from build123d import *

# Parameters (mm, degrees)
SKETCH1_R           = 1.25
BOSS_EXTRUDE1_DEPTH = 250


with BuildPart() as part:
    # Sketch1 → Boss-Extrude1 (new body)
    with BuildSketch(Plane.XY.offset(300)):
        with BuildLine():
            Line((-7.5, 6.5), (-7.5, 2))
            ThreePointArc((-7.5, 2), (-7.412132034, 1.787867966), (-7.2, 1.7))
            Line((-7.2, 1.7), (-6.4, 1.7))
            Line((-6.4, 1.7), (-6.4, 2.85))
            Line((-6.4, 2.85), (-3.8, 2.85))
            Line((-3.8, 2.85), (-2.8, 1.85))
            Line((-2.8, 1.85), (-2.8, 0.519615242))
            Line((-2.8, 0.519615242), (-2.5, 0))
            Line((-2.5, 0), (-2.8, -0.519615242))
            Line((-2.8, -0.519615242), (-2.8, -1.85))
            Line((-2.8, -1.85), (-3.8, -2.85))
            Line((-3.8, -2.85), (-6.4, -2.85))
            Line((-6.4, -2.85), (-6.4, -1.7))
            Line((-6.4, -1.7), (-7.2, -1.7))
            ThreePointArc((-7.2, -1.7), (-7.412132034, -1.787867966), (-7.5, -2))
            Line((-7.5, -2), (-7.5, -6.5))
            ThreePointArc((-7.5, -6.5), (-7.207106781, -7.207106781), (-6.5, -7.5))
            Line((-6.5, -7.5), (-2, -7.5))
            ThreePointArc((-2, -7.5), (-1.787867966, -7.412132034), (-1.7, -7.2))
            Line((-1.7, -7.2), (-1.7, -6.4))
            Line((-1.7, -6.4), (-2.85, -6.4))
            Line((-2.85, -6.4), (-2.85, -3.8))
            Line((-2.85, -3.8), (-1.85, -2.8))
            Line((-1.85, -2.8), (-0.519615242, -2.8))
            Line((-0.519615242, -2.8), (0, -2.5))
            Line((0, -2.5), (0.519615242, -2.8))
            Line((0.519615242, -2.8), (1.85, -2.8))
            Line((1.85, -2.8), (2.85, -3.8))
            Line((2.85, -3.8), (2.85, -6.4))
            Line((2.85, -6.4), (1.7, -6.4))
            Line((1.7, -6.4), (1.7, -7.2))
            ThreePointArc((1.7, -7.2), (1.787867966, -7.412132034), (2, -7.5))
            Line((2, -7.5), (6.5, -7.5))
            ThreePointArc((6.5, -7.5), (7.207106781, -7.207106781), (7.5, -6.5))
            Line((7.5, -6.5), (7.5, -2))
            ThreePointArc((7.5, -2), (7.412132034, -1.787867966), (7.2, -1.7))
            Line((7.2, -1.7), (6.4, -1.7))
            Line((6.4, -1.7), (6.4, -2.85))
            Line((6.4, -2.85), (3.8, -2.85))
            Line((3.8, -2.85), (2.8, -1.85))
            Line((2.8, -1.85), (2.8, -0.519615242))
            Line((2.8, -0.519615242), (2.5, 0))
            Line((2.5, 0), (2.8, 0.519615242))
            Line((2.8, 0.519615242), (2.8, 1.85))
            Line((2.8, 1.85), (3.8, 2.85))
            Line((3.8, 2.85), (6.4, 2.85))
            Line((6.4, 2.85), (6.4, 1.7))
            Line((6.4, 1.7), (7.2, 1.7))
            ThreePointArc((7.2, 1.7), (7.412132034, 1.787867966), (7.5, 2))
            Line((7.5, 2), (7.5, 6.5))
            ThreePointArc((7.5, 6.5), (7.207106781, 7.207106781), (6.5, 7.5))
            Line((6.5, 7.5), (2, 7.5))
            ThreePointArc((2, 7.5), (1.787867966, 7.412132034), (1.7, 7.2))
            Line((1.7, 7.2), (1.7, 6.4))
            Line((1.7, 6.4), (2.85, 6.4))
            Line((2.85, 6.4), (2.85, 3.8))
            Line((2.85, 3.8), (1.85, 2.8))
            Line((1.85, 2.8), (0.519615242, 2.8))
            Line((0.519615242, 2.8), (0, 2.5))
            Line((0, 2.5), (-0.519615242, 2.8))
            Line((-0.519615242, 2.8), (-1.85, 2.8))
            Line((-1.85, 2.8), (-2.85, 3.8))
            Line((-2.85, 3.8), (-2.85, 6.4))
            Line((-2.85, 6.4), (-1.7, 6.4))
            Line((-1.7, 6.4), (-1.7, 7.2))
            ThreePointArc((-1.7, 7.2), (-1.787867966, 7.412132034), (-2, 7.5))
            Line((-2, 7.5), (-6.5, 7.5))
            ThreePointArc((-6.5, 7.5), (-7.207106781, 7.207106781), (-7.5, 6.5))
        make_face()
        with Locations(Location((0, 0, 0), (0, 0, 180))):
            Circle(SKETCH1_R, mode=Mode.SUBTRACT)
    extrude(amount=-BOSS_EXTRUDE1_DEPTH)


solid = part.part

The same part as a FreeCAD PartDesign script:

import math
import FreeCAD as App
import Part
import Sketcher
from FreeCAD import Vector
Q = App.Units.Quantity

doc = App.newDocument("Part")
body = doc.addObject("PartDesign::Body", "Body")

# Sketch on XY plane
sketch1 = doc.addObject("Sketcher::SketchObject", "Sketch")
body.addObject(sketch1)
sketch1.AttachmentSupport = (doc.XY_Plane, [""])
sketch1.MapMode = "FlatFace"
sketch1.AttachmentOffset = App.Placement(Vector(0, 0, 300), App.Rotation())
sketch1.addGeometry(Part.LineSegment(Vector(-7.5, 6.5, 0), Vector(-7.5, 2, 0)), False)
sketch1.addGeometry(Part.ArcOfCircle(Part.Circle(Vector(-7.2, 2, 0), Vector(0, 0, 1), 0.3), math.radians(-180), math.radians(-90)), False)
sketch1.addGeometry(Part.LineSegment(Vector(-7.2, 1.7, 0), Vector(-6.4, 1.7, 0)), False)
sketch1.addGeometry(Part.LineSegment(Vector(-6.4, 1.7, 0), Vector(-6.4, 2.85, 0)), False)
sketch1.addGeometry(Part.LineSegment(Vector(-6.4, 2.85, 0), Vector(-3.8, 2.85, 0)), False)
sketch1.addGeometry(Part.LineSegment(Vector(-3.8, 2.85, 0), Vector(-2.8, 1.85, 0)), False)
sketch1.addGeometry(Part.LineSegment(Vector(-2.8, 1.85, 0), Vector(-2.8, 0.52, 0)), False)
sketch1.addGeometry(Part.LineSegment(Vector(-2.8, 0.52, 0), Vector(-2.5, 0, 0)), False)
sketch1.addGeometry(Part.LineSegment(Vector(-2.5, 0, 0), Vector(-2.8, -0.52, 0)), False)
sketch1.addGeometry(Part.LineSegment(Vector(-2.8, -0.52, 0), Vector(-2.8, -1.85, 0)), False)
sketch1.addGeometry(Part.LineSegment(Vector(-2.8, -1.85, 0), Vector(-3.8, -2.85, 0)), False)
sketch1.addGeometry(Part.LineSegment(Vector(-3.8, -2.85, 0), Vector(-6.4, -2.85, 0)), False)
sketch1.addGeometry(Part.LineSegment(Vector(-6.4, -2.85, 0), Vector(-6.4, -1.7, 0)), False)
sketch1.addGeometry(Part.LineSegment(Vector(-6.4, -1.7, 0), Vector(-7.2, -1.7, 0)), False)
sketch1.addGeometry(Part.ArcOfCircle(Part.Circle(Vector(-7.2, -2, 0), Vector(0, 0, 1), 0.3), math.radians(90), math.radians(180)), False)
sketch1.addGeometry(Part.LineSegment(Vector(-7.5, -2, 0), Vector(-7.5, -6.5, 0)), False)
sketch1.addGeometry(Part.ArcOfCircle(Part.Circle(Vector(-6.5, -6.5, 0), Vector(0, 0, 1), 1), math.radians(-180), math.radians(-90)), False)
sketch1.addGeometry(Part.LineSegment(Vector(-6.5, -7.5, 0), Vector(-2, -7.5, 0)), False)
sketch1.addGeometry(Part.ArcOfCircle(Part.Circle(Vector(-2, -7.2, 0), Vector(0, 0, 1), 0.3), math.radians(-90), math.radians(0)), False)
sketch1.addGeometry(Part.LineSegment(Vector(-1.7, -7.2, 0), Vector(-1.7, -6.4, 0)), False)
sketch1.addGeometry(Part.LineSegment(Vector(-1.7, -6.4, 0), Vector(-2.85, -6.4, 0)), False)
sketch1.addGeometry(Part.LineSegment(Vector(-2.85, -6.4, 0), Vector(-2.85, -3.8, 0)), False)
sketch1.addGeometry(Part.LineSegment(Vector(-2.85, -3.8, 0), Vector(-1.85, -2.8, 0)), False)
sketch1.addGeometry(Part.LineSegment(Vector(-1.85, -2.8, 0), Vector(-0.52, -2.8, 0)), False)
sketch1.addGeometry(Part.LineSegment(Vector(-0.52, -2.8, 0), Vector(0, -2.5, 0)), False)
sketch1.addGeometry(Part.LineSegment(Vector(0, -2.5, 0), Vector(0.52, -2.8, 0)), False)
sketch1.addGeometry(Part.LineSegment(Vector(0.52, -2.8, 0), Vector(1.85, -2.8, 0)), False)
sketch1.addGeometry(Part.LineSegment(Vector(1.85, -2.8, 0), Vector(2.85, -3.8, 0)), False)
sketch1.addGeometry(Part.LineSegment(Vector(2.85, -3.8, 0), Vector(2.85, -6.4, 0)), False)
sketch1.addGeometry(Part.LineSegment(Vector(2.85, -6.4, 0), Vector(1.7, -6.4, 0)), False)
sketch1.addGeometry(Part.LineSegment(Vector(1.7, -6.4, 0), Vector(1.7, -7.2, 0)), False)
sketch1.addGeometry(Part.ArcOfCircle(Part.Circle(Vector(2, -7.2, 0), Vector(0, 0, 1), 0.3), math.radians(-180), math.radians(-90)), False)
sketch1.addGeometry(Part.LineSegment(Vector(2, -7.5, 0), Vector(6.5, -7.5, 0)), False)
sketch1.addGeometry(Part.ArcOfCircle(Part.Circle(Vector(6.5, -6.5, 0), Vector(0, 0, 1), 1), math.radians(-90), math.radians(0)), False)
sketch1.addGeometry(Part.LineSegment(Vector(7.5, -6.5, 0), Vector(7.5, -2, 0)), False)
sketch1.addGeometry(Part.ArcOfCircle(Part.Circle(Vector(7.2, -2, 0), Vector(0, 0, 1), 0.3), math.radians(0), math.radians(90)), False)
sketch1.addGeometry(Part.LineSegment(Vector(7.2, -1.7, 0), Vector(6.4, -1.7, 0)), False)
sketch1.addGeometry(Part.LineSegment(Vector(6.4, -1.7, 0), Vector(6.4, -2.85, 0)), False)
sketch1.addGeometry(Part.LineSegment(Vector(6.4, -2.85, 0), Vector(3.8, -2.85, 0)), False)
sketch1.addGeometry(Part.LineSegment(Vector(3.8, -2.85, 0), Vector(2.8, -1.85, 0)), False)
sketch1.addGeometry(Part.LineSegment(Vector(2.8, -1.85, 0), Vector(2.8, -0.52, 0)), False)
sketch1.addGeometry(Part.LineSegment(Vector(2.8, -0.52, 0), Vector(2.5, 0, 0)), False)
sketch1.addGeometry(Part.LineSegment(Vector(2.5, 0, 0), Vector(2.8, 0.52, 0)), False)
sketch1.addGeometry(Part.LineSegment(Vector(2.8, 0.52, 0), Vector(2.8, 1.85, 0)), False)
sketch1.addGeometry(Part.LineSegment(Vector(2.8, 1.85, 0), Vector(3.8, 2.85, 0)), False)
sketch1.addGeometry(Part.LineSegment(Vector(3.8, 2.85, 0), Vector(6.4, 2.85, 0)), False)
sketch1.addGeometry(Part.LineSegment(Vector(6.4, 2.85, 0), Vector(6.4, 1.7, 0)), False)
sketch1.addGeometry(Part.LineSegment(Vector(6.4, 1.7, 0), Vector(7.2, 1.7, 0)), False)
sketch1.addGeometry(Part.ArcOfCircle(Part.Circle(Vector(7.2, 2, 0), Vector(0, 0, 1), 0.3), math.radians(-90), math.radians(0)), False)
sketch1.addGeometry(Part.LineSegment(Vector(7.5, 2, 0), Vector(7.5, 6.5, 0)), False)
sketch1.addGeometry(Part.ArcOfCircle(Part.Circle(Vector(6.5, 6.5, 0), Vector(0, 0, 1), 1), math.radians(0), math.radians(90)), False)
sketch1.addGeometry(Part.LineSegment(Vector(6.5, 7.5, 0), Vector(2, 7.5, 0)), False)
sketch1.addGeometry(Part.ArcOfCircle(Part.Circle(Vector(2, 7.2, 0), Vector(0, 0, 1), 0.3), math.radians(90), math.radians(180)), False)
sketch1.addGeometry(Part.LineSegment(Vector(1.7, 7.2, 0), Vector(1.7, 6.4, 0)), False)
sketch1.addGeometry(Part.LineSegment(Vector(1.7, 6.4, 0), Vector(2.85, 6.4, 0)), False)
sketch1.addGeometry(Part.LineSegment(Vector(2.85, 6.4, 0), Vector(2.85, 3.8, 0)), False)
sketch1.addGeometry(Part.LineSegment(Vector(2.85, 3.8, 0), Vector(1.85, 2.8, 0)), False)
sketch1.addGeometry(Part.LineSegment(Vector(1.85, 2.8, 0), Vector(0.52, 2.8, 0)), False)
sketch1.addGeometry(Part.LineSegment(Vector(0.52, 2.8, 0), Vector(0, 2.5, 0)), False)
sketch1.addGeometry(Part.LineSegment(Vector(0, 2.5, 0), Vector(-0.52, 2.8, 0)), False)
sketch1.addGeometry(Part.LineSegment(Vector(-0.52, 2.8, 0), Vector(-1.85, 2.8, 0)), False)
sketch1.addGeometry(Part.LineSegment(Vector(-1.85, 2.8, 0), Vector(-2.85, 3.8, 0)), False)
sketch1.addGeometry(Part.LineSegment(Vector(-2.85, 3.8, 0), Vector(-2.85, 6.4, 0)), False)
sketch1.addGeometry(Part.LineSegment(Vector(-2.85, 6.4, 0), Vector(-1.7, 6.4, 0)), False)
sketch1.addGeometry(Part.LineSegment(Vector(-1.7, 6.4, 0), Vector(-1.7, 7.2, 0)), False)
sketch1.addGeometry(Part.ArcOfCircle(Part.Circle(Vector(-2, 7.2, 0), Vector(0, 0, 1), 0.3), math.radians(0), math.radians(90)), False)
sketch1.addGeometry(Part.LineSegment(Vector(-2, 7.5, 0), Vector(-6.5, 7.5, 0)), False)
sketch1.addGeometry(Part.ArcOfCircle(Part.Circle(Vector(-6.5, 6.5, 0), Vector(0, 0, 1), 1), math.radians(90), math.radians(180)), False)
sketch1.addGeometry(Part.Circle(Vector(0, 0, 0), Vector(0, 0, 1), 1.25), False)
sketch1.addConstraint(Sketcher.Constraint("Tangent", 0, 2, 1, 1))
sketch1.addConstraint(Sketcher.Constraint("Tangent", 1, 2, 2, 1))
sketch1.addConstraint(Sketcher.Constraint("Coincident", 2, 2, 3, 1))
sketch1.addConstraint(Sketcher.Constraint("Coincident", 3, 2, 4, 1))
sketch1.addConstraint(Sketcher.Constraint("Coincident", 4, 2, 5, 1))
sketch1.addConstraint(Sketcher.Constraint("Coincident", 5, 2, 6, 1))
sketch1.addConstraint(Sketcher.Constraint("Coincident", 6, 2, 7, 1))
sketch1.addConstraint(Sketcher.Constraint("Coincident", 7, 2, 8, 1))
sketch1.addConstraint(Sketcher.Constraint("Coincident", 8, 2, 9, 1))
sketch1.addConstraint(Sketcher.Constraint("Coincident", 9, 2, 10, 1))
sketch1.addConstraint(Sketcher.Constraint("Coincident", 10, 2, 11, 1))
sketch1.addConstraint(Sketcher.Constraint("Coincident", 11, 2, 12, 1))
sketch1.addConstraint(Sketcher.Constraint("Coincident", 12, 2, 13, 1))
sketch1.addConstraint(Sketcher.Constraint("Tangent", 13, 2, 14, 1))
sketch1.addConstraint(Sketcher.Constraint("Tangent", 14, 2, 15, 1))
sketch1.addConstraint(Sketcher.Constraint("Tangent", 15, 2, 16, 1))
sketch1.addConstraint(Sketcher.Constraint("Tangent", 16, 2, 17, 1))
sketch1.addConstraint(Sketcher.Constraint("Tangent", 17, 2, 18, 1))
sketch1.addConstraint(Sketcher.Constraint("Tangent", 18, 2, 19, 1))
sketch1.addConstraint(Sketcher.Constraint("Coincident", 19, 2, 20, 1))
sketch1.addConstraint(Sketcher.Constraint("Coincident", 20, 2, 21, 1))
sketch1.addConstraint(Sketcher.Constraint("Coincident", 21, 2, 22, 1))
sketch1.addConstraint(Sketcher.Constraint("Coincident", 22, 2, 23, 1))
sketch1.addConstraint(Sketcher.Constraint("Coincident", 23, 2, 24, 1))
sketch1.addConstraint(Sketcher.Constraint("Coincident", 24, 2, 25, 1))
sketch1.addConstraint(Sketcher.Constraint("Coincident", 25, 2, 26, 1))
sketch1.addConstraint(Sketcher.Constraint("Coincident", 26, 2, 27, 1))
sketch1.addConstraint(Sketcher.Constraint("Coincident", 27, 2, 28, 1))
sketch1.addConstraint(Sketcher.Constraint("Coincident", 28, 2, 29, 1))
sketch1.addConstraint(Sketcher.Constraint("Coincident", 29, 2, 30, 1))
sketch1.addConstraint(Sketcher.Constraint("Tangent", 30, 2, 31, 1))
sketch1.addConstraint(Sketcher.Constraint("Tangent", 31, 2, 32, 1))
sketch1.addConstraint(Sketcher.Constraint("Tangent", 32, 2, 33, 1))
sketch1.addConstraint(Sketcher.Constraint("Tangent", 33, 2, 34, 1))
sketch1.addConstraint(Sketcher.Constraint("Tangent", 34, 2, 35, 1))
sketch1.addConstraint(Sketcher.Constraint("Tangent", 35, 2, 36, 1))
sketch1.addConstraint(Sketcher.Constraint("Coincident", 36, 2, 37, 1))
sketch1.addConstraint(Sketcher.Constraint("Coincident", 37, 2, 38, 1))
sketch1.addConstraint(Sketcher.Constraint("Coincident", 38, 2, 39, 1))
sketch1.addConstraint(Sketcher.Constraint("Coincident", 39, 2, 40, 1))
sketch1.addConstraint(Sketcher.Constraint("Coincident", 40, 2, 41, 1))
sketch1.addConstraint(Sketcher.Constraint("Coincident", 41, 2, 42, 1))
sketch1.addConstraint(Sketcher.Constraint("Coincident", 42, 2, 43, 1))
sketch1.addConstraint(Sketcher.Constraint("Coincident", 43, 2, 44, 1))
sketch1.addConstraint(Sketcher.Constraint("Coincident", 44, 2, 45, 1))
sketch1.addConstraint(Sketcher.Constraint("Coincident", 45, 2, 46, 1))
sketch1.addConstraint(Sketcher.Constraint("Coincident", 46, 2, 47, 1))
sketch1.addConstraint(Sketcher.Constraint("Tangent", 47, 2, 48, 1))
sketch1.addConstraint(Sketcher.Constraint("Tangent", 48, 2, 49, 1))
sketch1.addConstraint(Sketcher.Constraint("Tangent", 49, 2, 50, 1))
sketch1.addConstraint(Sketcher.Constraint("Tangent", 50, 2, 51, 1))
sketch1.addConstraint(Sketcher.Constraint("Tangent", 51, 2, 52, 1))
sketch1.addConstraint(Sketcher.Constraint("Tangent", 52, 2, 53, 1))
sketch1.addConstraint(Sketcher.Constraint("Coincident", 53, 2, 54, 1))
sketch1.addConstraint(Sketcher.Constraint("Coincident", 54, 2, 55, 1))
sketch1.addConstraint(Sketcher.Constraint("Coincident", 55, 2, 56, 1))
sketch1.addConstraint(Sketcher.Constraint("Coincident", 56, 2, 57, 1))
sketch1.addConstraint(Sketcher.Constraint("Coincident", 57, 2, 58, 1))
sketch1.addConstraint(Sketcher.Constraint("Coincident", 58, 2, 59, 1))
sketch1.addConstraint(Sketcher.Constraint("Coincident", 59, 2, 60, 1))
sketch1.addConstraint(Sketcher.Constraint("Coincident", 60, 2, 61, 1))
sketch1.addConstraint(Sketcher.Constraint("Coincident", 61, 2, 62, 1))
sketch1.addConstraint(Sketcher.Constraint("Coincident", 62, 2, 63, 1))
sketch1.addConstraint(Sketcher.Constraint("Coincident", 63, 2, 64, 1))
sketch1.addConstraint(Sketcher.Constraint("Tangent", 64, 2, 65, 1))
sketch1.addConstraint(Sketcher.Constraint("Tangent", 65, 2, 66, 1))
sketch1.addConstraint(Sketcher.Constraint("Tangent", 66, 2, 67, 1))
sketch1.addConstraint(Sketcher.Constraint("Tangent", 67, 2, 0, 1))
sketch1.addConstraint(Sketcher.Constraint("Vertical", 0))
sketch1.addConstraint(Sketcher.Constraint("Horizontal", 2))
sketch1.addConstraint(Sketcher.Constraint("Vertical", 3))
sketch1.addConstraint(Sketcher.Constraint("Horizontal", 4))
sketch1.addConstraint(Sketcher.Constraint("Vertical", 6))
sketch1.addConstraint(Sketcher.Constraint("Vertical", 9))
sketch1.addConstraint(Sketcher.Constraint("Horizontal", 11))
sketch1.addConstraint(Sketcher.Constraint("Vertical", 12))
sketch1.addConstraint(Sketcher.Constraint("Horizontal", 13))
sketch1.addConstraint(Sketcher.Constraint("Vertical", 15))
sketch1.addConstraint(Sketcher.Constraint("Horizontal", 17))
sketch1.addConstraint(Sketcher.Constraint("Vertical", 19))
sketch1.addConstraint(Sketcher.Constraint("Horizontal", 20))
sketch1.addConstraint(Sketcher.Constraint("Vertical", 21))
sketch1.addConstraint(Sketcher.Constraint("Horizontal", 23))
sketch1.addConstraint(Sketcher.Constraint("Horizontal", 26))
sketch1.addConstraint(Sketcher.Constraint("Vertical", 28))
sketch1.addConstraint(Sketcher.Constraint("Horizontal", 29))
sketch1.addConstraint(Sketcher.Constraint("Vertical", 30))
sketch1.addConstraint(Sketcher.Constraint("Horizontal", 32))
sketch1.addConstraint(Sketcher.Constraint("Vertical", 34))
sketch1.addConstraint(Sketcher.Constraint("Horizontal", 36))
sketch1.addConstraint(Sketcher.Constraint("Vertical", 37))
sketch1.addConstraint(Sketcher.Constraint("Horizontal", 38))
sketch1.addConstraint(Sketcher.Constraint("Vertical", 40))
sketch1.addConstraint(Sketcher.Constraint("Vertical", 43))
sketch1.addConstraint(Sketcher.Constraint("Horizontal", 45))
sketch1.addConstraint(Sketcher.Constraint("Vertical", 46))
sketch1.addConstraint(Sketcher.Constraint("Horizontal", 47))
sketch1.addConstraint(Sketcher.Constraint("Vertical", 49))
sketch1.addConstraint(Sketcher.Constraint("Horizontal", 51))
sketch1.addConstraint(Sketcher.Constraint("Vertical", 53))
sketch1.addConstraint(Sketcher.Constraint("Horizontal", 54))
sketch1.addConstraint(Sketcher.Constraint("Vertical", 55))
sketch1.addConstraint(Sketcher.Constraint("Horizontal", 57))
sketch1.addConstraint(Sketcher.Constraint("Horizontal", 60))
sketch1.addConstraint(Sketcher.Constraint("Vertical", 62))
sketch1.addConstraint(Sketcher.Constraint("Horizontal", 63))
sketch1.addConstraint(Sketcher.Constraint("Vertical", 64))
sketch1.addConstraint(Sketcher.Constraint("Horizontal", 66))
sketch1.addConstraint(Sketcher.Constraint("Coincident", 68, 3, -1, 1))
sketch1.addConstraint(Sketcher.Constraint("Equal", 1, 14))
sketch1.addConstraint(Sketcher.Constraint("Equal", 14, 18))
sketch1.addConstraint(Sketcher.Constraint("Equal", 18, 31))
sketch1.addConstraint(Sketcher.Constraint("Equal", 16, 33))
sketch1.addConstraint(Sketcher.Constraint("Equal", 31, 35))
sketch1.addConstraint(Sketcher.Constraint("Equal", 35, 48))
sketch1.addConstraint(Sketcher.Constraint("Equal", 33, 50))
sketch1.addConstraint(Sketcher.Constraint("Equal", 48, 52))
sketch1.addConstraint(Sketcher.Constraint("Equal", 52, 65))
sketch1.addConstraint(Sketcher.Constraint("Equal", 50, 67))
sketch1.addConstraint(Sketcher.Constraint("Symmetric", 1, 3, 35, 3, -1, 1))
sketch1.addConstraint(Sketcher.Constraint("Symmetric", 14, 3, 48, 3, -1, 1))
sketch1.addConstraint(Sketcher.Constraint("Symmetric", 18, 3, 52, 3, -1, 1))
sketch1.addConstraint(Sketcher.Constraint("Symmetric", 31, 3, 65, 3, -1, 1))
sketch1.addConstraint(Sketcher.Constraint("Symmetric", 3, 2, 37, 2, -1, 1))
sketch1.addConstraint(Sketcher.Constraint("Symmetric", 5, 2, 39, 2, -1, 1))
sketch1.addConstraint(Sketcher.Constraint("Symmetric", 7, 2, 41, 2, -1, 1))
sketch1.addConstraint(Sketcher.Constraint("Symmetric", 8, 2, 42, 2, -1, 1))
sketch1.addConstraint(Sketcher.Constraint("Symmetric", 10, 2, 44, 2, -1, 1))
sketch1.addConstraint(Sketcher.Constraint("Symmetric", 20, 2, 54, 2, -1, 1))
sketch1.addConstraint(Sketcher.Constraint("Symmetric", 22, 2, 56, 2, -1, 1))
sketch1.addConstraint(Sketcher.Constraint("Symmetric", 24, 2, 58, 2, -1, 1))
sketch1.addConstraint(Sketcher.Constraint("Symmetric", 25, 2, 59, 2, -1, 1))
sketch1.addConstraint(Sketcher.Constraint("Symmetric", 27, 2, 61, 2, -1, 1))
sketch1.addConstraint(Sketcher.Constraint("Symmetric", 18, 3, 31, 3, -2))
sketch1.addConstraint(Sketcher.Constraint("Symmetric", 14, 3, 35, 3, -2))
sketch1.addConstraint(Sketcher.Constraint("Symmetric", 23, 2, 25, 2, -2))
sketch1.addConstraint(Sketcher.Constraint("Symmetric", 21, 2, 27, 2, -2))
sketch1.addConstraint(Sketcher.Constraint("Symmetric", 11, 2, 37, 2, -2))
sketch1.addConstraint(Sketcher.Constraint("Symmetric", 9, 2, 39, 2, -2))
sketch1.addConstraint(Sketcher.Constraint("PointOnObject", 7, 2, -1))
sketch1.addConstraint(Sketcher.Constraint("PointOnObject", 24, 2, -2))
sketch1.addConstraint(Sketcher.Constraint("Perpendicular", 5, 10))
sketch1.addConstraint(Sketcher.Constraint("Parallel", 10, 22))
sketch1.addConstraint(Sketcher.Constraint("Perpendicular", 7, 24))
sketch1.addConstraint(Sketcher.Constraint("Perpendicular", 8, 25))
sketch1.addConstraint(Sketcher.Constraint("Perpendicular", 22, 27))
sketch1.addConstraint(Sketcher.Constraint("Parallel", 27, 39))
sketch1.addConstraint(Sketcher.Constraint("Perpendicular", 24, 41))
sketch1.addConstraint(Sketcher.Constraint("Perpendicular", 39, 44))
sketch1.addConstraint(Sketcher.Constraint("Parallel", 44, 56))
sketch1.addConstraint(Sketcher.Constraint("Perpendicular", 41, 58))
sketch1.addConstraint(Sketcher.Constraint("Perpendicular", 56, 61))
sketch1.addConstraint(Sketcher.Constraint("Horizontal", 20, 2, 28, 2))
sketch1.addConstraint(Sketcher.Constraint("Horizontal", 54, 2, 62, 2))
sketch1.addConstraint(Sketcher.Constraint("Vertical", 4, 2, 10, 2))
sketch1.addConstraint(Sketcher.Constraint("Vertical", 37, 2, 45, 2))
sketch1.addConstraint(Sketcher.Constraint("Equal", 66, 0))
sketch1.addConstraint(Sketcher.Constraint("Equal", 63, 3))
sketch1.addConstraint(Sketcher.Constraint("Equal", 60, 6))
sketch1.addConstraint(Sketcher.Constraint("Equal", 47, 19))
sketch1.addConstraint(Sketcher.Constraint("Equal", 45, 21))
sketch1.addConstraint(Sketcher.Constraint("Equal", 10, 22))
sketch1.addConstraint(Sketcher.Constraint("Equal", 8, 24))
sketch1.addConstraint(Sketcher.Constraint("Radius", 16, Q("1 mm")))
sketch1.addConstraint(Sketcher.Constraint("Diameter", 68, Q("2.5 mm")))
sketch1.addConstraint(Sketcher.Constraint("Radius", 1, Q("0.3 mm")))
sketch1.addConstraint(Sketcher.Constraint("Angle", 7, Q("-60 deg")))
sketch1.addConstraint(Sketcher.Constraint("DistanceX", 2, 1, 2, 2, Q("0.8 mm")))
sketch1.addConstraint(Sketcher.Constraint("DistanceX", 4, 1, 4, 2, Q("2.6 mm")))
sketch1.addConstraint(Sketcher.Constraint("DistanceX", 17, 1, 17, 2, Q("4.5 mm")))
sketch1.addConstraint(Sketcher.Constraint("DistanceY", -1, 1, 1, 3, Q("2 mm")))
sketch1.addConstraint(Sketcher.Constraint("Distance", 7, Q("0.6 mm")))
sketch1.addConstraint(Sketcher.Constraint("DistanceX", 20, 2, 20, 1, Q("1.15 mm")))
sketch1.addConstraint(Sketcher.Constraint("DistanceX", 5, 2, -1, 1, Q("2.8 mm")))
pad1 = doc.addObject("PartDesign::Pad", "Pad")
body.addObject(pad1)
pad1.Profile = sketch1
pad1.Length = 250
pad1.Reversed = True

doc.recompute()
